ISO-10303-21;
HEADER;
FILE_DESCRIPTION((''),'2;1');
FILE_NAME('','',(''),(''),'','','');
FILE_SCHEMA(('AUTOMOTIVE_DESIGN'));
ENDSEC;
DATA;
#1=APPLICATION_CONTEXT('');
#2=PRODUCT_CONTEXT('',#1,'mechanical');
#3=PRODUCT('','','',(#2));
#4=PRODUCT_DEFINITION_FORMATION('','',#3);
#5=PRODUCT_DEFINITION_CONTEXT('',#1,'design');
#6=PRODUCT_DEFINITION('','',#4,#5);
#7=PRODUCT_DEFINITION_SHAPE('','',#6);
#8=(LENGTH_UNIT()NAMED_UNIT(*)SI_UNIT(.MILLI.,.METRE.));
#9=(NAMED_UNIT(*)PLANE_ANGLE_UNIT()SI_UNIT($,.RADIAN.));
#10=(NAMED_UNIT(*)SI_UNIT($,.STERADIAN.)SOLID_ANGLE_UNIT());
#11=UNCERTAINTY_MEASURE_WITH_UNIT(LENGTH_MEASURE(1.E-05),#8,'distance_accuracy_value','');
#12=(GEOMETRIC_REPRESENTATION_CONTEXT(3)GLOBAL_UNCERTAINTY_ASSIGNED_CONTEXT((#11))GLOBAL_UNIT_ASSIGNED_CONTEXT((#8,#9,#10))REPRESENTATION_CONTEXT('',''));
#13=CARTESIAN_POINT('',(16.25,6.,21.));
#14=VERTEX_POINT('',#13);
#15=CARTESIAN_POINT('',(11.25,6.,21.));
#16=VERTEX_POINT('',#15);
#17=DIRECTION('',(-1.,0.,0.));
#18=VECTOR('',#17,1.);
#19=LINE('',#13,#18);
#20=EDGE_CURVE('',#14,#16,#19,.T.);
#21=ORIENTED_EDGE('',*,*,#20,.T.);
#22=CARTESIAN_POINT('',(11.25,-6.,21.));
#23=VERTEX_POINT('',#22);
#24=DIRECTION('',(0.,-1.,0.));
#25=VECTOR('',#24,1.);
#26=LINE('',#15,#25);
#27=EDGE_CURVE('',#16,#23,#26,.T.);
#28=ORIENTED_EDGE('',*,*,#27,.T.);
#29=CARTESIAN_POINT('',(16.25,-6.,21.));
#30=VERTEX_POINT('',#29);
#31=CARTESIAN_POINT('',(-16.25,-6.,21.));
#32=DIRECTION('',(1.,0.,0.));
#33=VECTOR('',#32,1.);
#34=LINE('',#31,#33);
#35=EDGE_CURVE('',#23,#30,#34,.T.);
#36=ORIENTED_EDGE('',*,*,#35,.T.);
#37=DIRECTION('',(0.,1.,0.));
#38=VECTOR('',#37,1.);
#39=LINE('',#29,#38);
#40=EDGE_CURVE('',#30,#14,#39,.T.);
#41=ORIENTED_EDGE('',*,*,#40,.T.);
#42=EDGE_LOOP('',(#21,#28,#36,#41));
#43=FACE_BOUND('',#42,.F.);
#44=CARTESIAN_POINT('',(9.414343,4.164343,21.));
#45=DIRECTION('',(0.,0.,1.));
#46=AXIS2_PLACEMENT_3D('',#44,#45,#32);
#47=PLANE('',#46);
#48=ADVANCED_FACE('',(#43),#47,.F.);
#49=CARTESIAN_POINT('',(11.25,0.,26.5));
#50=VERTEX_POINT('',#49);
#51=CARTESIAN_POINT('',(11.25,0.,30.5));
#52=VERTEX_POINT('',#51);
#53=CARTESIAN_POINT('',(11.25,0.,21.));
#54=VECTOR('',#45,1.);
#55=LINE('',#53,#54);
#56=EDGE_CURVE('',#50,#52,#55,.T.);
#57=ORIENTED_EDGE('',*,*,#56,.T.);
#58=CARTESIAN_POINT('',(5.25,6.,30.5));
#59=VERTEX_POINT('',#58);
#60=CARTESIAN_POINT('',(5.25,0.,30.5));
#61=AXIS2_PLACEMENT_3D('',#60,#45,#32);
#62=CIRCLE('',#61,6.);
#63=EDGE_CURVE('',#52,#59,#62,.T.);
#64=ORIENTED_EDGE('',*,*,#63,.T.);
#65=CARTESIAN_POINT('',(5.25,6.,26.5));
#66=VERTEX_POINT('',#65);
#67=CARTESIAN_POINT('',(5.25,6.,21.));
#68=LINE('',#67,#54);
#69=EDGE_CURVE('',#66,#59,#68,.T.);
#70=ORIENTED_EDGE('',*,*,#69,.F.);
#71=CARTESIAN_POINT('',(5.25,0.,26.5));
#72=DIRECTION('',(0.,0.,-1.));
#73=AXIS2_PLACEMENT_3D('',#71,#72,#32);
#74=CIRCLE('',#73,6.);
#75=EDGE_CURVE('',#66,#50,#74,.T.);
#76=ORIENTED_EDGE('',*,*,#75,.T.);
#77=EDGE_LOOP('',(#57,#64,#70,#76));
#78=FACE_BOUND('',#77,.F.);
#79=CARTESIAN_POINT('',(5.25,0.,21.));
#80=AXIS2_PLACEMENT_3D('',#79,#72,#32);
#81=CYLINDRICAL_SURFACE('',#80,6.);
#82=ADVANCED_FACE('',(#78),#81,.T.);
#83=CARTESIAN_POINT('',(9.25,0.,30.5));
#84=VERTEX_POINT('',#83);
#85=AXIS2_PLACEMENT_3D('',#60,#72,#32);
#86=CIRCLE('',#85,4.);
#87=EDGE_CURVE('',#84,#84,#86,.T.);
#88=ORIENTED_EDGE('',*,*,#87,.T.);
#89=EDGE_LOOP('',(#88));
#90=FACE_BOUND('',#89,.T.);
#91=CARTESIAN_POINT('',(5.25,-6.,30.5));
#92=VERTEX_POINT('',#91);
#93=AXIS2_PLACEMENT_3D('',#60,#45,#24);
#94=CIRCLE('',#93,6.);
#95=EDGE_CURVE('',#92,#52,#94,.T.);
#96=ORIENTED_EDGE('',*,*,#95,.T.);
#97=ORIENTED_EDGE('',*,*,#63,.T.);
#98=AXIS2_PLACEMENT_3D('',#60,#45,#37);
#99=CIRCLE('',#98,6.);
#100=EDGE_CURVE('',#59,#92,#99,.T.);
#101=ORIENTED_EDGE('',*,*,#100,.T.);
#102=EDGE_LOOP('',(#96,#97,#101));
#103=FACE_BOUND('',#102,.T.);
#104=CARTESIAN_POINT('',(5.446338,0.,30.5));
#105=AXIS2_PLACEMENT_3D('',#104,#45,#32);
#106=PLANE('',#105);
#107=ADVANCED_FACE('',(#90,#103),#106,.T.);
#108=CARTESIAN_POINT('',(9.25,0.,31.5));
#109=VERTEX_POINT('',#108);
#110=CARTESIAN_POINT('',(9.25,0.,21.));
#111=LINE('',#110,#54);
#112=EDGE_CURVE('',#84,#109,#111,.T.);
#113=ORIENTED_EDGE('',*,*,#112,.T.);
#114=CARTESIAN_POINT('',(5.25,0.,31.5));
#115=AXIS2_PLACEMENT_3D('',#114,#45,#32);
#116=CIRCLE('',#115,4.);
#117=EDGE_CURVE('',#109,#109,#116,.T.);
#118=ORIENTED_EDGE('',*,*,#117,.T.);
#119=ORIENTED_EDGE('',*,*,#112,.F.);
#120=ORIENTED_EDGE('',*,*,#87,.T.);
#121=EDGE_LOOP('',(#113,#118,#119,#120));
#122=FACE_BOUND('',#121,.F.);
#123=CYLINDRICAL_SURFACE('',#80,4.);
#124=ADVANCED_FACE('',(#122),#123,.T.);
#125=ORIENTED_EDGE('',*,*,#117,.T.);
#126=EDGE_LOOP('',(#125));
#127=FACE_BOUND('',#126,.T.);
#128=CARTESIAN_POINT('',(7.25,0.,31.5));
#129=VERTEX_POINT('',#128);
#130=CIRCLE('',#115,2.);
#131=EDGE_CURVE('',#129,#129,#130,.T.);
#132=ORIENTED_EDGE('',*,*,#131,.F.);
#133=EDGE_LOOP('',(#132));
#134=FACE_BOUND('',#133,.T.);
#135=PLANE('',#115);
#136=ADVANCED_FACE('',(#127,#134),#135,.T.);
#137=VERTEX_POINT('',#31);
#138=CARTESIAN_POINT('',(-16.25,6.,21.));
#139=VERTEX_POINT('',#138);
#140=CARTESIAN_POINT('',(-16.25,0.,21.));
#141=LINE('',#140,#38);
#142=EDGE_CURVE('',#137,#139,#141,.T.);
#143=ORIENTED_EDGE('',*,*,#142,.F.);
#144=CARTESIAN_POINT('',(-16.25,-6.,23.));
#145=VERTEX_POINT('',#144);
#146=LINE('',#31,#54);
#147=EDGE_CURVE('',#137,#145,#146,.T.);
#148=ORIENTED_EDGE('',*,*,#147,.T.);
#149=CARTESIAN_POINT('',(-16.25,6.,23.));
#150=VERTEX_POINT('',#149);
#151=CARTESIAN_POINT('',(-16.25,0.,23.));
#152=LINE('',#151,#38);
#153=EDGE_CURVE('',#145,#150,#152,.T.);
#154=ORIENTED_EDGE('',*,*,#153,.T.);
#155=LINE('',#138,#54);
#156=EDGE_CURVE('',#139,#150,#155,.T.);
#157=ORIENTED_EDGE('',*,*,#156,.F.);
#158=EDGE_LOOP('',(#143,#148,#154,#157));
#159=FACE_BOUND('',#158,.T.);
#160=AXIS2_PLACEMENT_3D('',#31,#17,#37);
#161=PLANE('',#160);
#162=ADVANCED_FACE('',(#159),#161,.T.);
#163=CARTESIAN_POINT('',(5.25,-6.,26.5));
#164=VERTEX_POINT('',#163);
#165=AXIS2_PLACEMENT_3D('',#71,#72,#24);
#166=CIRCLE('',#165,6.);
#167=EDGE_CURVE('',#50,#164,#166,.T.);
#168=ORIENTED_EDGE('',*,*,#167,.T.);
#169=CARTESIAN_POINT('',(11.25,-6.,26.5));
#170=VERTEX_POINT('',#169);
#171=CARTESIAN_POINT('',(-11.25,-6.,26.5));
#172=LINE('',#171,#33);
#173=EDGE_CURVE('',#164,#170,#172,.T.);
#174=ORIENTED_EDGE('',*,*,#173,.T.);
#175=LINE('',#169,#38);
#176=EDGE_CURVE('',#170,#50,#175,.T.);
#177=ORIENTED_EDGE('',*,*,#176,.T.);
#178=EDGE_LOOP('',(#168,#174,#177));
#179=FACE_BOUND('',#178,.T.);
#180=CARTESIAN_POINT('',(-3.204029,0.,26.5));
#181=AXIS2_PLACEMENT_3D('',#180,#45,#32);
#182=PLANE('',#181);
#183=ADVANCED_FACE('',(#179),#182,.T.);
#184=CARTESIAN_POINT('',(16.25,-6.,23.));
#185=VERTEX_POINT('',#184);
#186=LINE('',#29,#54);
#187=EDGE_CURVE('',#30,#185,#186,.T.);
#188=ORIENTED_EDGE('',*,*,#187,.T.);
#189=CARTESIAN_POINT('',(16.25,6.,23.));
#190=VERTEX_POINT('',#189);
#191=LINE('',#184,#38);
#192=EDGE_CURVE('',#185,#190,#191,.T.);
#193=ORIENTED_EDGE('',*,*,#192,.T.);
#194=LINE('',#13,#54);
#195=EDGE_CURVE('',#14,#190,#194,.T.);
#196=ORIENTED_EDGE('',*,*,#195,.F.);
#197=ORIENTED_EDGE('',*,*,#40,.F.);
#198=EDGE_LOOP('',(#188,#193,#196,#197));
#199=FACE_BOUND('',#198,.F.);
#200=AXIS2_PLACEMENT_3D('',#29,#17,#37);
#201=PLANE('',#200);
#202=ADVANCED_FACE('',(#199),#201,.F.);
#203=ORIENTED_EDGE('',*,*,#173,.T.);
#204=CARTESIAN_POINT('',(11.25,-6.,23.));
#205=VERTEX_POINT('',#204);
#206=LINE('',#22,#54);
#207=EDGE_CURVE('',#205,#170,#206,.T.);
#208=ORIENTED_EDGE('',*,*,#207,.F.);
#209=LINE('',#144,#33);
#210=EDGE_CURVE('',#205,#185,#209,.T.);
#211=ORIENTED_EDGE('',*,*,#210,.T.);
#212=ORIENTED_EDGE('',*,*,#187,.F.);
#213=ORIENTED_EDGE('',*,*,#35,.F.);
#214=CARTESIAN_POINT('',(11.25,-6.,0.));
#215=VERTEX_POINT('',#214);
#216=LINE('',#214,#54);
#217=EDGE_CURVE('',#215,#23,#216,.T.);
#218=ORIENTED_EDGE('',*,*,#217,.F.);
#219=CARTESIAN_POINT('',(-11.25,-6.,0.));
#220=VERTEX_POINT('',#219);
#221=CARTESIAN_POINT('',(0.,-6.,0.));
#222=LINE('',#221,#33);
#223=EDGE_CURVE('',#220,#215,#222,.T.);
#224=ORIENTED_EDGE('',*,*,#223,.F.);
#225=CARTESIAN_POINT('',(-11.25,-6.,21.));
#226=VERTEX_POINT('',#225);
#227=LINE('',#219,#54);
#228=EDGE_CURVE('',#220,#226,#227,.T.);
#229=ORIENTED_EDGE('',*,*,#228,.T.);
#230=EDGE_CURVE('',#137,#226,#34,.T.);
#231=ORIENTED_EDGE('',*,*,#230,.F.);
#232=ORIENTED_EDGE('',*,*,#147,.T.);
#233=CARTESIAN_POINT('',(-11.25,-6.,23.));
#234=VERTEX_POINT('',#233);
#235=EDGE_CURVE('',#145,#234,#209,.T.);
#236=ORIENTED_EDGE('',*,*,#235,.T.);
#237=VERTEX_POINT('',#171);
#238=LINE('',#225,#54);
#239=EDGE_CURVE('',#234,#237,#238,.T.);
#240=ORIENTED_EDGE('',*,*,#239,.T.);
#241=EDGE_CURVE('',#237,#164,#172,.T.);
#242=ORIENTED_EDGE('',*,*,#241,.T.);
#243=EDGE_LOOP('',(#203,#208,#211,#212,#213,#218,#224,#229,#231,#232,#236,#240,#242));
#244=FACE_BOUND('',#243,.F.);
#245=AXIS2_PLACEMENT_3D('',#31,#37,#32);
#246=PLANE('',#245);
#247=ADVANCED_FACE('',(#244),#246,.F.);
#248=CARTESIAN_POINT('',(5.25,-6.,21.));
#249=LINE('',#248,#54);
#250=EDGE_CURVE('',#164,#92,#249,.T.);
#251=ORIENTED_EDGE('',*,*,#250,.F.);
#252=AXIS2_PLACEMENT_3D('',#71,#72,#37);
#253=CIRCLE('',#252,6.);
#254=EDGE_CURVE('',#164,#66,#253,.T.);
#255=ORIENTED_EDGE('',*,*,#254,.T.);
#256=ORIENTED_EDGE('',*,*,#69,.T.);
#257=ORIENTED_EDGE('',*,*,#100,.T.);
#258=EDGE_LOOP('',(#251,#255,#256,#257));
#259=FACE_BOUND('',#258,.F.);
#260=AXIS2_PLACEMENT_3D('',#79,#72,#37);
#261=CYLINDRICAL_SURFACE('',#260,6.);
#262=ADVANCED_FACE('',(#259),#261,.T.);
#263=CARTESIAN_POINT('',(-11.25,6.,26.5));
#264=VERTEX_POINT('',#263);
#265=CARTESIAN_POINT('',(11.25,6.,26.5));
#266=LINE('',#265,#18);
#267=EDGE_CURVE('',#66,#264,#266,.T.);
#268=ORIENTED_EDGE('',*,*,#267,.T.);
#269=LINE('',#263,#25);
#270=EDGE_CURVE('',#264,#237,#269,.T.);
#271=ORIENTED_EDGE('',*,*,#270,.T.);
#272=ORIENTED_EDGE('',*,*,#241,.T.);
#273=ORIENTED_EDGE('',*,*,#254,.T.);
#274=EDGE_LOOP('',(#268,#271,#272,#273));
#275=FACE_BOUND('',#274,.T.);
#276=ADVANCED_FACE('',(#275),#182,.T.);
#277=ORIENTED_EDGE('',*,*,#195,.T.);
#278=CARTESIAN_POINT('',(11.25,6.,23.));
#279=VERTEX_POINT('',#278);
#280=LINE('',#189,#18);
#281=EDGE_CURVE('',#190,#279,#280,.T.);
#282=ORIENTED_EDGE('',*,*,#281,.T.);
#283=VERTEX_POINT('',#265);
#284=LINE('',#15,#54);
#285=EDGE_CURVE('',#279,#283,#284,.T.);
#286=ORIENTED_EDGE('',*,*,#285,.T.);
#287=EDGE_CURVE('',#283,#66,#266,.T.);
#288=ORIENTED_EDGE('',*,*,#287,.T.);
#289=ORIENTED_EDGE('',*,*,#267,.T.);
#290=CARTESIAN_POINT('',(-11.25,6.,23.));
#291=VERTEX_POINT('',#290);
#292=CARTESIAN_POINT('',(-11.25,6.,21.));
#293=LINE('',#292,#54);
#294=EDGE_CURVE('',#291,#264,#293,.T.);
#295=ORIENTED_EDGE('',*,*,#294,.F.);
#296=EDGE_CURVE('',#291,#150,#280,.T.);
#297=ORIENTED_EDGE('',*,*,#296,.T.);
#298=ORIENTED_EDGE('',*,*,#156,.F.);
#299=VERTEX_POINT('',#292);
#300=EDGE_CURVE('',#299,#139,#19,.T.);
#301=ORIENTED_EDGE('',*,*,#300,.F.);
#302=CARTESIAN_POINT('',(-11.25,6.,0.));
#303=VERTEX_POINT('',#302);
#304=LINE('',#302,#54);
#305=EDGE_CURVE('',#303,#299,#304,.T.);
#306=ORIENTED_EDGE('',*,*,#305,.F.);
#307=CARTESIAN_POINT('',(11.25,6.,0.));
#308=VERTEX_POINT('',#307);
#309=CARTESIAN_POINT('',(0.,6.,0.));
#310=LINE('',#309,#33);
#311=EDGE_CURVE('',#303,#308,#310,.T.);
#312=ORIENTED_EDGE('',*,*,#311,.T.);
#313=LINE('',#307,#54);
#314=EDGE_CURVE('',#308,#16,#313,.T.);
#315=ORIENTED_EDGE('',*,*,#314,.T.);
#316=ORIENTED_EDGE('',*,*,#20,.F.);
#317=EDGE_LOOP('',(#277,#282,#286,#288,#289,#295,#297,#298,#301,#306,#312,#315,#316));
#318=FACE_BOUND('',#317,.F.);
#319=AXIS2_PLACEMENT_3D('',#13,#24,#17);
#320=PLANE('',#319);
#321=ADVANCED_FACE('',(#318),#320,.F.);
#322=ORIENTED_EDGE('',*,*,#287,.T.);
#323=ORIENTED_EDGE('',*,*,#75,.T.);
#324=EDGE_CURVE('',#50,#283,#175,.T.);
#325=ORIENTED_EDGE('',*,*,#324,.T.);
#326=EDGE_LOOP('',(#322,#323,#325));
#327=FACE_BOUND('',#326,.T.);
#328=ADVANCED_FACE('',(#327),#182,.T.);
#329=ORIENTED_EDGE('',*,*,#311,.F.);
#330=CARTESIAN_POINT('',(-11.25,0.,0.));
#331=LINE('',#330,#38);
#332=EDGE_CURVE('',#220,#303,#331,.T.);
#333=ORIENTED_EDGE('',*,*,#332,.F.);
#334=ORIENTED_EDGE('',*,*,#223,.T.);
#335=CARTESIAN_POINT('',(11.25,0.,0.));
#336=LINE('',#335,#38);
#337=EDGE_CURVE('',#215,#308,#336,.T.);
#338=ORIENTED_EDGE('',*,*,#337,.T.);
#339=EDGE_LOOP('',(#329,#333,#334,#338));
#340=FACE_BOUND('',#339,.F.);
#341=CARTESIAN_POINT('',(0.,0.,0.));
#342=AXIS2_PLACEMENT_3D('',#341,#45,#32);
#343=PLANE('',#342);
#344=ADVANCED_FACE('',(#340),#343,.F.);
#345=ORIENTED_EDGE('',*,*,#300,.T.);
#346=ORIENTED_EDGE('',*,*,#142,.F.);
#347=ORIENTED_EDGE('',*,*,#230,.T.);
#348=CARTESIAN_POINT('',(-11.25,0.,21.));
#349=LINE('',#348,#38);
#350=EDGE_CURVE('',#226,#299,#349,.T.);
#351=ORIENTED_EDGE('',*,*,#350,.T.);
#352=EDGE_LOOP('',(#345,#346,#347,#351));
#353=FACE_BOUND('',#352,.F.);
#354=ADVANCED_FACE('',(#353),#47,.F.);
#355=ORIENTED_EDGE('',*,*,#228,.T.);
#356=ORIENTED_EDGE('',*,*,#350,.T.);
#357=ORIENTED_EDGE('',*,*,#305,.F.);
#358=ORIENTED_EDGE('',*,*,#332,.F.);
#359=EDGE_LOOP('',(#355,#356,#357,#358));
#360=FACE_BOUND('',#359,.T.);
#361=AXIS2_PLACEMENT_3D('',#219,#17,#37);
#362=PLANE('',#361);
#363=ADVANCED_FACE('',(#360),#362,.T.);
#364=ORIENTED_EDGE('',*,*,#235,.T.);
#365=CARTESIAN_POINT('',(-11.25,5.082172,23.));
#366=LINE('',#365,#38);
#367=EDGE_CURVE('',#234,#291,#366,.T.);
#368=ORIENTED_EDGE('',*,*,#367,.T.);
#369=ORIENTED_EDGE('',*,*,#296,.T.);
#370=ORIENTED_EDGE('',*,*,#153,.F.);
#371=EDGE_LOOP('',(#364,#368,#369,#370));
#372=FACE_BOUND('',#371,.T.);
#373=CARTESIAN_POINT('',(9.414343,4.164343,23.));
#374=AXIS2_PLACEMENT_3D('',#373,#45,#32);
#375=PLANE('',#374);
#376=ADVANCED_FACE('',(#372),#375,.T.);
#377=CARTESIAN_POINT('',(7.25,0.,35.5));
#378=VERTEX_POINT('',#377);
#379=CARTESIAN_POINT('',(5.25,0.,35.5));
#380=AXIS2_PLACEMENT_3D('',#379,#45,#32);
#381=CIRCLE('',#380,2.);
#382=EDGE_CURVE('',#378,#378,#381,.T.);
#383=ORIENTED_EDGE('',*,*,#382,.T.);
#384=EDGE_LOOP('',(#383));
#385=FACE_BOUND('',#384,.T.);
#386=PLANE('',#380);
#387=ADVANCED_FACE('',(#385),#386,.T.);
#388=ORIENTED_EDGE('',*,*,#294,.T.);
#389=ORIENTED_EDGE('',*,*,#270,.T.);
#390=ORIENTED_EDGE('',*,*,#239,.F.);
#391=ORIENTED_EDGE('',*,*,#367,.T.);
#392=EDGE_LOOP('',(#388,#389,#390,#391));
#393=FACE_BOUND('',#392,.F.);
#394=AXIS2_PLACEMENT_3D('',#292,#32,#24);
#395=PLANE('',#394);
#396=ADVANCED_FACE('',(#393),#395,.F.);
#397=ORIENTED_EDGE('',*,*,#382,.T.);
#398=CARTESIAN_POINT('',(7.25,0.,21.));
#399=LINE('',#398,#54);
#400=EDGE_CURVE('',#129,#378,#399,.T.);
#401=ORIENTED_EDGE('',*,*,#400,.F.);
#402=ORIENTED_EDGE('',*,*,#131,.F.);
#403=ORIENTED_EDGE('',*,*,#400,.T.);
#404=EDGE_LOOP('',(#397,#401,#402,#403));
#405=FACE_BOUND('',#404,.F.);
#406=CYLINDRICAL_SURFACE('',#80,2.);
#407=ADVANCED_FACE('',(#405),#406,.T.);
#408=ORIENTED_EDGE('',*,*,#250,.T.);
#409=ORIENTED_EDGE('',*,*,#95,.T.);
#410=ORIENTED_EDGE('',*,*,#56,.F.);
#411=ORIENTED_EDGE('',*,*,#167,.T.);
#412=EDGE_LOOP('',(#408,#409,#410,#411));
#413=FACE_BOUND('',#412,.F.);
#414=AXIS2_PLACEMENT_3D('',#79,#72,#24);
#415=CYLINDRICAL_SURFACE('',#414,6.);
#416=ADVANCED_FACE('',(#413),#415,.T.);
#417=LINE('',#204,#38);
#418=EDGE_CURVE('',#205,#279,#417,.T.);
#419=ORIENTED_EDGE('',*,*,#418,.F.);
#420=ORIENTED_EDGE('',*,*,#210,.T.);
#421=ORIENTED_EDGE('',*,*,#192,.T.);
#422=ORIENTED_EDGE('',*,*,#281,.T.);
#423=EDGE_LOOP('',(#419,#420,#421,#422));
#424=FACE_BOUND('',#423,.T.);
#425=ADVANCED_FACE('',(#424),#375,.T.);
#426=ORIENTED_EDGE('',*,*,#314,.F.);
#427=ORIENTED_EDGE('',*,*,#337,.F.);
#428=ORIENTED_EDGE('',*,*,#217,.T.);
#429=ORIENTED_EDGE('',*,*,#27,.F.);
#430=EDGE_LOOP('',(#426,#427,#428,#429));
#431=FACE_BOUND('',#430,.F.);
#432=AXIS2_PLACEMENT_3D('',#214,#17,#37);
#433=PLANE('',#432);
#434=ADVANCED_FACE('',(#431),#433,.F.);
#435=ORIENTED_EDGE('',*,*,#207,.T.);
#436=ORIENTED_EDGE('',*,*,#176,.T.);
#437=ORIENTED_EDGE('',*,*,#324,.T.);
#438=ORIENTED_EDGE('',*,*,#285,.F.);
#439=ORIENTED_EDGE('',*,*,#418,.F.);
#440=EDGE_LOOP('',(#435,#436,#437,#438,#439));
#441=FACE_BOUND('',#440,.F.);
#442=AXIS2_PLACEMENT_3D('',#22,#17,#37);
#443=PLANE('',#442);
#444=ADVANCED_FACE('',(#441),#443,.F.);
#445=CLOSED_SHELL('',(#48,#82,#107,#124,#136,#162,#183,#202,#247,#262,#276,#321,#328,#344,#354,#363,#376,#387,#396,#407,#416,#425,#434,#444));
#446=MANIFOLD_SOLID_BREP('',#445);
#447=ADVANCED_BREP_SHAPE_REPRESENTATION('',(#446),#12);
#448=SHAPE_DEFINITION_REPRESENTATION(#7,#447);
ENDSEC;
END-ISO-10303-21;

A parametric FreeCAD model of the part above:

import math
import FreeCAD as App
import Part
import Sketcher

V = App.Vector
Q = App.Units.Quantity


def add_polygon(sketch, points):
    """Adds a closed chain of lines whose ends are joined by coincident constraints."""
    first, n = sketch.GeometryCount, len(points)
    for a, b in zip(points, points[1:] + points[:1]):
        sketch.addGeometry(Part.LineSegment(App.Vector(*a, 0), App.Vector(*b, 0)), False)
    for i in range(n):
        sketch.addConstraint(Sketcher.Constraint("Coincident", first + i, 2, first + (i + 1) % n, 1))

doc = App.newDocument("Part")
body = doc.addObject("PartDesign::Body", "Body")

# Sketch on XY plane
sketch1 = body.newObject("Sketcher::SketchObject", "Sketch")
sketch1.AttachmentSupport = (doc.getObject("XY_Plane"), [""])
sketch1.MapMode = "FlatFace"
add_polygon(sketch1, [(-11, 6), (-11, -6), (11, -6), (11, 6)])  # lines 0-3
sketch1.addConstraint([
    Sketcher.Constraint("Vertical", 0),
    Sketcher.Constraint("Horizontal", 1),
    Sketcher.Constraint("Vertical", 2),
    Sketcher.Constraint("Horizontal", 3),
    Sketcher.Constraint("Symmetric", 0, 2, 2, 2, -1, 1),
    Sketcher.Constraint("DistanceY", 0, 2, 0, 1, Q("12 mm")),
    Sketcher.Constraint("DistanceX", 1, 1, 1, 2, Q("22.5 mm")),
])
pad1 = body.newObject("PartDesign::Pad", "Pad")
pad1.Profile = sketch1
pad1.Length = 21

# Sketch on XY plane
sketch2 = body.newObject("Sketcher::SketchObject", "Sketch001")
sketch2.AttachmentSupport = (doc.getObject("XY_Plane"), [""])
sketch2.MapMode = "FlatFace"
sketch2.AttachmentOffset = App.Placement(V(0, 0, 21), App.Rotation())
add_polygon(sketch2, [(16.2, -6), (16.2, 6), (-16.2, 6), (-16.2, -6)])  # lines 0-3
sketch2.addGeometry(Part.Circle(V(5.2, 0, 0), V(0, 0, 1), 2), False)  # 4
sketch2.addConstraint([
    Sketcher.Constraint("Vertical", 0),
    Sketcher.Constraint("Horizontal", 1),
    Sketcher.Constraint("Vertical", 2),
    Sketcher.Constraint("Horizontal", 3),
    Sketcher.Constraint("Symmetric", 0, 2, 2, 2, -1, 1),
    Sketcher.Constraint("PointOnObject", 4, 3, -1),
    Sketcher.Constraint("Diameter", 4, Q("4 mm")),
    Sketcher.Constraint("DistanceY", 0, 1, 0, 2, Q("12 mm")),
    Sketcher.Constraint("DistanceX", 1, 2, 1, 1, Q("32.5 mm")),
    Sketcher.Constraint("DistanceX", 4, 3, 0, 2, Q("11 mm")),
])
pad2 = body.newObject("PartDesign::Pad", "Pad001")
pad2.Profile = sketch2
pad2.Length = 2

# Sketch on XY plane
sketch3 = body.newObject("Sketcher::SketchObject", "Sketch002")
sketch3.AttachmentSupport = (doc.getObject("XY_Plane"), [""])
sketch3.MapMode = "FlatFace"
sketch3.AttachmentOffset = App.Placement(V(0, 0, 21), App.Rotation())
add_polygon(sketch3, [(-11.2, 6), (-11.2, -6), (11.2, -6), (11.2, 6)])  # lines 0-3
sketch3.addGeometry(Part.Circle(V(5.2, 0, 0), V(0, 0, 1), 2), False)  # 4
sketch3.addConstraint([
    Sketcher.Constraint("Vertical", 0),
    Sketcher.Constraint("Horizontal", 1),
    Sketcher.Constraint("Vertical", 2),
    Sketcher.Constraint("Horizontal", 3),
    Sketcher.Constraint("Symmetric", 0, 2, 2, 2, -1, 1),
    Sketcher.Constraint("PointOnObject", 4, 3, -1),
    Sketcher.Constraint("Diameter", 4, Q("4 mm")),
    Sketcher.Constraint("DistanceY", 0, 2, 0, 1, Q("12 mm")),
    Sketcher.Constraint("DistanceX", 1, 1, 1, 2, Q("22.5 mm")),
    Sketcher.Constraint("DistanceX", 4, 3, 1, 2, Q("6 mm")),
])
pad3 = body.newObject("PartDesign::Pad", "Pad002")
pad3.Profile = sketch3
pad3.Length = 5.5

# Sketch on XY plane
sketch4 = body.newObject("Sketcher::SketchObject", "Sketch003")
sketch4.AttachmentSupport = (doc.getObject("XY_Plane"), [""])
sketch4.MapMode = "FlatFace"
sketch4.AttachmentOffset = App.Placement(V(0, 0, 21), App.Rotation())
sketch4.addGeometry([
    Part.ArcOfCircle(Part.Circle(V(5.2, 0, 0), V(0, 0, 1), 6), math.radians(0), math.radians(90)),
    Part.ArcOfCircle(Part.Circle(V(5.2, 0, 0), V(0, 0, 1), 6), math.radians(90), math.radians(270)),
    Part.ArcOfCircle(Part.Circle(V(5.2, 0, 0), V(0, 0, 1), 6), math.radians(-90), math.radians(0)),
    Part.Circle(V(5.2, 0, 0), V(0, 0, 1), 2),
], False)
sketch4.addConstraint([
    Sketcher.Constraint("Tangent", 0, 2, 1, 1),
    Sketcher.Constraint("Tangent", 1, 2, 2, 1),
    Sketcher.Constraint("Tangent", 2, 2, 0, 1),
    Sketcher.Constraint("Coincident", 3, 3, 0, 3),
    Sketcher.Constraint("Symmetric", 0, 2, 1, 2, -1),
    Sketcher.Constraint("PointOnObject", 2, 2, -1),
    Sketcher.Constraint("Vertical", 3, 3, 0, 2),
    Sketcher.Constraint("Diameter", 3, Q("4 mm")),
    Sketcher.Constraint("Radius", 0, Q("6 mm")),
    Sketcher.Constraint("DistanceX", -1, 1, 0, 3, Q("5.25 mm")),
])
pad4 = body.newObject("PartDesign::Pad", "Pad003")
pad4.Profile = sketch4
pad4.Length = 9.5

# Sketch on XY plane
sketch5 = body.newObject("Sketcher::SketchObject", "Sketch004")
sketch5.AttachmentSupport = (doc.getObject("XY_Plane"), [""])
sketch5.MapMode = "FlatFace"
sketch5.AttachmentOffset = App.Placement(V(0, 0, 21), App.Rotation())
sketch5.addGeometry([
    Part.Circle(V(5.2, 0, 0), V(0, 0, 1), 4),
    Part.Circle(V(5.2, 0, 0), V(0, 0, 1), 2),
], False)
sketch5.addConstraint([
    Sketcher.Constraint("Coincident", 1, 3, 0, 3),
    Sketcher.Constraint("PointOnObject", 0, 3, -1),
    Sketcher.Constraint("Diameter", 0, Q("8 mm")),
    Sketcher.Constraint("Diameter", 1, Q("4 mm")),
    Sketcher.Constraint("DistanceX", -1, 1, 0, 3, Q("5.25 mm")),
])
pad5 = body.newObject("PartDesign::Pad", "Pad004")
pad5.Profile = sketch5
pad5.Length = 10.5

# Sketch on XY plane
sketch6 = body.newObject("Sketcher::SketchObject", "Sketch005")
sketch6.AttachmentSupport = (doc.getObject("XY_Plane"), [""])
sketch6.MapMode = "FlatFace"
sketch6.AttachmentOffset = App.Placement(V(0, 0, 21), App.Rotation())
sketch6.addGeometry(Part.Circle(V(5.2, 0, 0), V(0, 0, 1), 2), False)
sketch6.addConstraint([
    Sketcher.Constraint("PointOnObject", 0, 3, -1),
    Sketcher.Constraint("Diameter", 0, Q("4 mm")),
    Sketcher.Constraint("DistanceX", -1, 1, 0, 3, Q("5.25 mm")),
])
pad6 = body.newObject("PartDesign::Pad", "Pad005")
pad6.Profile = sketch6
pad6.Length = 14.5

doc.recompute()
